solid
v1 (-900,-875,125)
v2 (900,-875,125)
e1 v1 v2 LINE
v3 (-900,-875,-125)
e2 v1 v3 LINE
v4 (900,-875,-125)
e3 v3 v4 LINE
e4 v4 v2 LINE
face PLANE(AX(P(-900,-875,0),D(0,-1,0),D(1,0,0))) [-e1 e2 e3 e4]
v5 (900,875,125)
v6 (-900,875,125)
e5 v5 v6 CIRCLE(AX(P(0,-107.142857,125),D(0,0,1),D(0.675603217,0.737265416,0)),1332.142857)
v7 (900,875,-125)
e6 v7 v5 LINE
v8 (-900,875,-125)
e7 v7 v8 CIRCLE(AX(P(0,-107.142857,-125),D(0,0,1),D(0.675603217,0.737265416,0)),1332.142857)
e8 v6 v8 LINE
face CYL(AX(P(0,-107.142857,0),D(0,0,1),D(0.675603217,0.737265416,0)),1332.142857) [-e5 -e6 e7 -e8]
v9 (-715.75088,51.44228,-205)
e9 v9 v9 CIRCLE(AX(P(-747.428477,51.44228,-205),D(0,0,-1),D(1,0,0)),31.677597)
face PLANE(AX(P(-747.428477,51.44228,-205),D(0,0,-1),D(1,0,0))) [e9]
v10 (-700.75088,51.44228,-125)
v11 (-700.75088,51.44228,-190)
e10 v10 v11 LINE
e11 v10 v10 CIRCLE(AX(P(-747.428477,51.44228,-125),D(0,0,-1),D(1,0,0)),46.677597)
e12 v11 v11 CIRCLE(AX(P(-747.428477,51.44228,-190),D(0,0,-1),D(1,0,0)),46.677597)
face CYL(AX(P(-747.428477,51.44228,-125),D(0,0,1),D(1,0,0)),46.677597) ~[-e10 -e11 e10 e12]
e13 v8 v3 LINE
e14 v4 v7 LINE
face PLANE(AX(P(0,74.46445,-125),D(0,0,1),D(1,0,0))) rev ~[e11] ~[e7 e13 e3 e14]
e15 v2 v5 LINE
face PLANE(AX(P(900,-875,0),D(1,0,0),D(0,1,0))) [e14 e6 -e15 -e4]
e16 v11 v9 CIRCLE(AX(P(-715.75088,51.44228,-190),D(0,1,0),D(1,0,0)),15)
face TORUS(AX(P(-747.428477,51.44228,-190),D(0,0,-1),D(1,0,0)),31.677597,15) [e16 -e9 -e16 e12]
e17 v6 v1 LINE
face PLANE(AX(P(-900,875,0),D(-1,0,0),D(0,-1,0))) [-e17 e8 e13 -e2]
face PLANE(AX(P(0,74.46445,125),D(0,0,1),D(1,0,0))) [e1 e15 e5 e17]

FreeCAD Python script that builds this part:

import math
import FreeCAD as App
import Part
import Sketcher
Q = App.Units.Quantity


def edges_at(feature, points):
    """Names of the edges that pass closest to the given points."""
    edges = feature.Shape.Edges
    near = lambda p: min(range(len(edges)), key=lambda i: edges[i].distToShape(Part.Vertex(*p))[0])
    return sorted({f"Edge{near(p) + 1}" for p in points})

doc = App.newDocument("Part")
body = doc.addObject("PartDesign::Body", "Body")

# Sketch on XY plane
sketch1 = doc.addObject("Sketcher::SketchObject", "Sketch")
body.addObject(sketch1)
sketch1.AttachmentSupport = (doc.XY_Plane, [""])
sketch1.MapMode = "FlatFace"
sketch1.addGeometry([
    Part.LineSegment(App.Vector(-900, -875, 0), App.Vector(900, -875, 0)),
    Part.LineSegment(App.Vector(900, -875, 0), App.Vector(900, 875, 0)),
    Part.ArcOfCircle(Part.Circle(App.Vector(0, -107.142857, 0), App.Vector(0, 0, 1), 1332.142857), math.radians(47.498989), math.radians(132.501011)),
    Part.LineSegment(App.Vector(-900, 875, 0), App.Vector(-900, -875, 0)),
], False)
sketch1.addConstraint([
    Sketcher.Constraint("Coincident", 0, 2, 1, 1),
    Sketcher.Constraint("Coincident", 1, 2, 2, 1),
    Sketcher.Constraint("Coincident", 2, 2, 3, 1),
    Sketcher.Constraint("Coincident", 3, 2, 0, 1),
    Sketcher.Constraint("Horizontal", 0),
    Sketcher.Constraint("Vertical", 1),
    Sketcher.Constraint("Vertical", 3),
    Sketcher.Constraint("Symmetric", 1, 2, 3, 2, -1, 1),
    Sketcher.Constraint("PointOnObject", 2, 3, -2),
    Sketcher.Constraint("DistanceX", 0, 1, 0, 2, Q("1800 mm")),
    Sketcher.Constraint("DistanceY", 1, 1, 1, 2, Q("1750 mm")),
    Sketcher.Constraint("Radius", 2, Q("1332.142857 mm")),
])
pad1 = doc.addObject("PartDesign::Pad", "Pad")
body.addObject(pad1)
pad1.Profile = sketch1
pad1.Length = 250
pad1.Midplane = True

# Sketch on XY plane
sketch2 = doc.addObject("Sketcher::SketchObject", "Sketch001")
body.addObject(sketch2)
sketch2.AttachmentSupport = (doc.XY_Plane, [""])
sketch2.MapMode = "FlatFace"
sketch2.AttachmentOffset = App.Placement(App.Vector(0, 0, -125), App.Rotation())
sketch2.addGeometry(Part.Circle(App.Vector(-747.428477, 51.44228, 0), App.Vector(0, 0, 1), 46.677597), False)
sketch2.addConstraint([
    Sketcher.Constraint("Diameter", 0, Q("93.355194 mm")),
    Sketcher.Constraint("DistanceY", -1, 1, 0, 3, Q("51.44228 mm")),
    Sketcher.Constraint("DistanceX", 0, 3, -1, 1, Q("747.428477 mm")),
])
pad2 = doc.addObject("PartDesign::Pad", "Pad001")
body.addObject(pad2)
pad2.Profile = sketch2
pad2.Length = 80
pad2.Reversed = True
doc.recompute()

fillet = doc.addObject("PartDesign::Fillet", "Fillet")
body.addObject(fillet)
fillet.Base = (pad2, edges_at(pad2, [(-794.106, 51.442, -205)]))
fillet.Radius = 15

doc.recompute()
